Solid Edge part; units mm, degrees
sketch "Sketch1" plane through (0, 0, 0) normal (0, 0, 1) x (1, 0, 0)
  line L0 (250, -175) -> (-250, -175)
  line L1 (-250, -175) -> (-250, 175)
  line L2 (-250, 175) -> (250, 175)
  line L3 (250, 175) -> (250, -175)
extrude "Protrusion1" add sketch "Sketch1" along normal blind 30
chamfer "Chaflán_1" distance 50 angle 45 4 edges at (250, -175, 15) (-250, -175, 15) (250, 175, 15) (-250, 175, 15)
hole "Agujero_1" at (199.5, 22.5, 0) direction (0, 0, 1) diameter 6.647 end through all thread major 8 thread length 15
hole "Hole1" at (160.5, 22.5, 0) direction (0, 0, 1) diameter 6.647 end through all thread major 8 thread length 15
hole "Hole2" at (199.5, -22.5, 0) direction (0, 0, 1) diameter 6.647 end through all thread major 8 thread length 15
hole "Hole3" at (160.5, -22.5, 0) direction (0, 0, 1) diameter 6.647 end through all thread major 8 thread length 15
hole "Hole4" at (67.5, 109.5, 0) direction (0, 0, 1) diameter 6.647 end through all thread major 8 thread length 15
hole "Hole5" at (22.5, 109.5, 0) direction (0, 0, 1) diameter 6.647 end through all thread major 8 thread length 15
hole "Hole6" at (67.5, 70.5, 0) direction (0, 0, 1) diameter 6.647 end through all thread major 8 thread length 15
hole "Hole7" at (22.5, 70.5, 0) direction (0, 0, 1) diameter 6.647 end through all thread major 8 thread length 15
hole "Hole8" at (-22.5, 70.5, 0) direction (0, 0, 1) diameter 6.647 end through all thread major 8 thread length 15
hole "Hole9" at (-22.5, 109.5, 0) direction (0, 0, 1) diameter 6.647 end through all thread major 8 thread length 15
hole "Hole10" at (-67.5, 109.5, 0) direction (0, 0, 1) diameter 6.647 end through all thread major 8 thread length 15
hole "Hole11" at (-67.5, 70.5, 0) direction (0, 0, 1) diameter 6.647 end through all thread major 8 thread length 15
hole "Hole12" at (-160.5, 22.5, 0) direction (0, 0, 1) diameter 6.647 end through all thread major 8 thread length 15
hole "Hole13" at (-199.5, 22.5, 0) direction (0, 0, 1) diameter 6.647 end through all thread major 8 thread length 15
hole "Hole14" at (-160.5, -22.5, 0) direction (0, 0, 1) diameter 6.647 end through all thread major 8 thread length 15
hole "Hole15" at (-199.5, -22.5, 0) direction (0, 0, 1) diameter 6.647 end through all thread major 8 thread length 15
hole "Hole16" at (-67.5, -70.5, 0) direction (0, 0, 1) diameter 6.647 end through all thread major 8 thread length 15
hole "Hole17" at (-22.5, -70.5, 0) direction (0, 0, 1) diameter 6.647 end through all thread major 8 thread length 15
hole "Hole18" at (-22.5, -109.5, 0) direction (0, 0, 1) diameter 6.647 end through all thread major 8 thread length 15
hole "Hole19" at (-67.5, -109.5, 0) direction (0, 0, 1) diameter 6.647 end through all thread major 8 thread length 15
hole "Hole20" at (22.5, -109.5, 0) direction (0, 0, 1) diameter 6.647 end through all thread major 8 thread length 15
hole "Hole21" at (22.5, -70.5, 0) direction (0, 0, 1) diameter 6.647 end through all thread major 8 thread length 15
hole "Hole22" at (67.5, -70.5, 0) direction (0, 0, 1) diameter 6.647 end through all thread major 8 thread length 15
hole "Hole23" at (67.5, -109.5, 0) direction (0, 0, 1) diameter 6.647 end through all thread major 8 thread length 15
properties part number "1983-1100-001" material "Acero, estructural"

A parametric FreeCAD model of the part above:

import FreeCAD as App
import Part
import Sketcher

V = App.Vector


def edges_at(feature, points):
    """Names of the edges that pass closest to the given points."""
    edges = feature.Shape.Edges
    near = lambda p: min(range(len(edges)), key=lambda i: edges[i].distToShape(Part.Vertex(*p))[0])
    return sorted({f"Edge{near(p) + 1}" for p in points})


def add_polygon(sketch, points):
    """Adds a closed chain of lines whose ends are joined by coincident constraints."""
    first, n = sketch.GeometryCount, len(points)
    for a, b in zip(points, points[1:] + points[:1]):
        sketch.addGeometry(Part.LineSegment(App.Vector(*a, 0), App.Vector(*b, 0)), False)
    for i in range(n):
        sketch.addConstraint(Sketcher.Constraint("Coincident", first + i, 2, first + (i + 1) % n, 1))

doc = App.newDocument("Part")
params = doc.addObject("Spreadsheet::Sheet", "Params")
for row, (alias, value) in enumerate([
    ("sketch1_width", "500 mm"),
    ("sketch1_height", "350 mm"),
    ("pad1_length", "30 mm"),
    ("chamfer_size", "50 mm"),
    ("hole_diameter", "6.647 mm"),
    ("hole2_diameter", "6.647 mm"),
    ("hole3_diameter", "6.647 mm"),
    ("hole4_diameter", "6.647 mm"),
    ("hole5_diameter", "6.647 mm"),
    ("hole6_diameter", "6.647 mm"),
    ("hole7_diameter", "6.647 mm"),
    ("hole8_diameter", "6.647 mm"),
    ("hole9_diameter", "6.647 mm"),
    ("hole10_diameter", "6.647 mm"),
    ("hole11_diameter", "6.647 mm"),
    ("hole12_diameter", "6.647 mm"),
    ("hole13_diameter", "6.647 mm"),
    ("hole14_diameter", "6.647 mm"),
    ("hole15_diameter", "6.647 mm"),
    ("hole16_diameter", "6.647 mm"),
    ("hole17_diameter", "6.647 mm"),
    ("hole18_diameter", "6.647 mm"),
    ("hole19_diameter", "6.647 mm"),
    ("hole20_diameter", "6.647 mm"),
    ("hole21_diameter", "6.647 mm"),
    ("hole22_diameter", "6.647 mm"),
    ("hole23_diameter", "6.647 mm"),
    ("hole24_diameter", "6.647 mm"),
], start=1):
    params.set(f"A{row}", alias)
    params.set(f"B{row}", "=" + value)
    params.setAlias(f"B{row}", alias)

body = doc.addObject("PartDesign::Body", "Body")

sketch1 = body.newObject("Sketcher::SketchObject", "Sketch")
sketch1.AttachmentSupport = (doc.getObject("XY_Plane"), [""])
sketch1.MapMode = "FlatFace"
add_polygon(sketch1, [(-250, -175), (250, -175), (250, 175), (-250, 175)])
sketch1.addConstraint([
    Sketcher.Constraint("Horizontal", 0),
    Sketcher.Constraint("Vertical", 1),
    Sketcher.Constraint("Horizontal", 2),
    Sketcher.Constraint("Vertical", 3),
    Sketcher.Constraint("Symmetric", 0, 2, 2, 2, -1, 1),
    Sketcher.Constraint("DistanceX", 0, 1, 0, 2, 500.0),
    Sketcher.Constraint("DistanceY", 1, 1, 1, 2, 350.0),
])
sketch1.setExpression("Constraints[9]", "Params.sketch1_width")
sketch1.setExpression("Constraints[10]", "Params.sketch1_height")
pad1 = body.newObject("PartDesign::Pad", "Pad")
pad1.Profile = sketch1
pad1.setExpression("Length", "Params.pad1_length")
doc.recompute()

chamfer = body.newObject("PartDesign::Chamfer", "Chamfer")
chamfer.Base = (pad1, edges_at(pad1, [
    (250, -175, 15),
    (-250, -175, 15),
    (250, 175, 15),
    (-250, 175, 15),
]))
chamfer.setExpression("Size", "Params.chamfer_size")

sketch2 = body.newObject("Sketcher::SketchObject", "Sketch001")
sketch2.AttachmentSupport = (doc.getObject("XY_Plane"), [""])
sketch2.MapMode = "FlatFace"
sketch2.addGeometry(Part.Circle(V(199.5, 22.5, 0), V(0, 0, 1), 3.3), False)
sketch2.addConstraint([
    Sketcher.Constraint("Diameter", 0, 6.647),
    Sketcher.Constraint("DistanceX", -1, 1, 0, 3, 199.5),
    Sketcher.Constraint("DistanceY", -1, 1, 0, 3, 22.5),
])
doc.recompute()
hole = body.newObject("PartDesign::Hole", "Hole")
hole.Profile = sketch2
hole.ThreadType = "None"
hole.setExpression("Diameter", "Params.hole_diameter")
hole.DepthType = "ThroughAll"
hole.Reversed = True

sketch3 = body.newObject("Sketcher::SketchObject", "Sketch002")
sketch3.AttachmentSupport = (doc.getObject("XY_Plane"), [""])
sketch3.MapMode = "FlatFace"
sketch3.addGeometry(Part.Circle(V(160.5, 22.5, 0), V(0, 0, 1), 3.3), False)
sketch3.addConstraint([
    Sketcher.Constraint("Diameter", 0, 6.647),
    Sketcher.Constraint("DistanceX", -1, 1, 0, 3, 160.5),
    Sketcher.Constraint("DistanceY", -1, 1, 0, 3, 22.5),
])
doc.recompute()
hole2 = body.newObject("PartDesign::Hole", "Hole001")
hole2.Profile = sketch3
hole2.ThreadType = "None"
hole2.setExpression("Diameter", "Params.hole2_diameter")
hole2.DepthType = "ThroughAll"
hole2.Reversed = True

sketch4 = body.newObject("Sketcher::SketchObject", "Sketch003")
sketch4.AttachmentSupport = (doc.getObject("XY_Plane"), [""])
sketch4.MapMode = "FlatFace"
sketch4.addGeometry(Part.Circle(V(199.5, -22.5, 0), V(0, 0, 1), 3.3), False)
sketch4.addConstraint([
    Sketcher.Constraint("Diameter", 0, 6.647),
    Sketcher.Constraint("DistanceX", -1, 1, 0, 3, 199.5),
    Sketcher.Constraint("DistanceY", 0, 3, -1, 1, 22.5),
])
doc.recompute()
hole3 = body.newObject("PartDesign::Hole", "Hole002")
hole3.Profile = sketch4
hole3.ThreadType = "None"
hole3.setExpression("Diameter", "Params.hole3_diameter")
hole3.DepthType = "ThroughAll"
hole3.Reversed = True

sketch5 = body.newObject("Sketcher::SketchObject", "Sketch004")
sketch5.AttachmentSupport = (doc.getObject("XY_Plane"), [""])
sketch5.MapMode = "FlatFace"
sketch5.addGeometry(Part.Circle(V(160.5, -22.5, 0), V(0, 0, 1), 3.3), False)
sketch5.addConstraint([
    Sketcher.Constraint("Diameter", 0, 6.647),
    Sketcher.Constraint("DistanceX", -1, 1, 0, 3, 160.5),
    Sketcher.Constraint("DistanceY", 0, 3, -1, 1, 22.5),
])
doc.recompute()
hole4 = body.newObject("PartDesign::Hole", "Hole003")
hole4.Profile = sketch5
hole4.ThreadType = "None"
hole4.setExpression("Diameter", "Params.hole4_diameter")
hole4.DepthType = "ThroughAll"
hole4.Reversed = True

sketch6 = body.newObject("Sketcher::SketchObject", "Sketch005")
sketch6.AttachmentSupport = (doc.getObject("XY_Plane"), [""])
sketch6.MapMode = "FlatFace"
sketch6.addGeometry(Part.Circle(V(67.5, 109.5, 0), V(0, 0, 1), 3.3), False)
sketch6.addConstraint([
    Sketcher.Constraint("Diameter", 0, 6.647),
    Sketcher.Constraint("DistanceX", -1, 1, 0, 3, 67.5),
    Sketcher.Constraint("DistanceY", -1, 1, 0, 3, 109.5),
])
doc.recompute()
hole5 = body.newObject("PartDesign::Hole", "Hole004")
hole5.Profile = sketch6
hole5.ThreadType = "None"
hole5.setExpression("Diameter", "Params.hole5_diameter")
hole5.DepthType = "ThroughAll"
hole5.Reversed = True

sketch7 = body.newObject("Sketcher::SketchObject", "Sketch006")
sketch7.AttachmentSupport = (doc.getObject("XY_Plane"), [""])
sketch7.MapMode = "FlatFace"
sketch7.addGeometry(Part.Circle(V(22.5, 109.5, 0), V(0, 0, 1), 3.3), False)
sketch7.addConstraint([
    Sketcher.Constraint("Diameter", 0, 6.647),
    Sketcher.Constraint("DistanceX", -1, 1, 0, 3, 22.5),
    Sketcher.Constraint("DistanceY", -1, 1, 0, 3, 109.5),
])
doc.recompute()
hole6 = body.newObject("PartDesign::Hole", "Hole005")
hole6.Profile = sketch7
hole6.ThreadType = "None"
hole6.setExpression("Diameter", "Params.hole6_diameter")
hole6.DepthType = "ThroughAll"
hole6.Reversed = True

sketch8 = body.newObject("Sketcher::SketchObject", "Sketch007")
sketch8.AttachmentSupport = (doc.getObject("XY_Plane"), [""])
sketch8.MapMode = "FlatFace"
sketch8.addGeometry(Part.Circle(V(67.5, 70.5, 0), V(0, 0, 1), 3.3), False)
sketch8.addConstraint([
    Sketcher.Constraint("Diameter", 0, 6.647),
    Sketcher.Constraint("DistanceX", -1, 1, 0, 3, 67.5),
    Sketcher.Constraint("DistanceY", -1, 1, 0, 3, 70.5),
])
doc.recompute()
hole7 = body.newObject("PartDesign::Hole", "Hole006")
hole7.Profile = sketch8
hole7.ThreadType = "None"
hole7.setExpression("Diameter", "Params.hole7_diameter")
hole7.DepthType = "ThroughAll"
hole7.Reversed = True

sketch9 = body.newObject("Sketcher::SketchObject", "Sketch008")
sketch9.AttachmentSupport = (doc.getObject("XY_Plane"), [""])
sketch9.MapMode = "FlatFace"
sketch9.addGeometry(Part.Circle(V(22.5, 70.5, 0), V(0, 0, 1), 3.3), False)
sketch9.addConstraint([
    Sketcher.Constraint("Diameter", 0, 6.647),
    Sketcher.Constraint("DistanceX", -1, 1, 0, 3, 22.5),
    Sketcher.Constraint("DistanceY", -1, 1, 0, 3, 70.5),
])
doc.recompute()
hole8 = body.newObject("PartDesign::Hole", "Hole007")
hole8.Profile = sketch9
hole8.ThreadType = "None"
hole8.setExpression("Diameter", "Params.hole8_diameter")
hole8.DepthType = "ThroughAll"
hole8.Reversed = True

sketch10 = body.newObject("Sketcher::SketchObject", "Sketch009")
sketch10.AttachmentSupport = (doc.getObject("XY_Plane"), [""])
sketch10.MapMode = "FlatFace"
sketch10.addGeometry(Part.Circle(V(-22.5, 70.5, 0), V(0, 0, 1), 3.3), False)
sketch10.addConstraint([
    Sketcher.Constraint("Diameter", 0, 6.647),
    Sketcher.Constraint("DistanceX", 0, 3, -1, 1, 22.5),
    Sketcher.Constraint("DistanceY", -1, 1, 0, 3, 70.5),
])
doc.recompute()
hole9 = body.newObject("PartDesign::Hole", "Hole008")
hole9.Profile = sketch10
hole9.ThreadType = "None"
hole9.setExpression("Diameter", "Params.hole9_diameter")
hole9.DepthType = "ThroughAll"
hole9.Reversed = True

sketch11 = body.newObject("Sketcher::SketchObject", "Sketch010")
sketch11.AttachmentSupport = (doc.getObject("XY_Plane"), [""])
sketch11.MapMode = "FlatFace"
sketch11.addGeometry(Part.Circle(V(-22.5, 109.5, 0), V(0, 0, 1), 3.3), False)
sketch11.addConstraint([
    Sketcher.Constraint("Diameter", 0, 6.647),
    Sketcher.Constraint("DistanceX", 0, 3, -1, 1, 22.5),
    Sketcher.Constraint("DistanceY", -1, 1, 0, 3, 109.5),
])
doc.recompute()
hole10 = body.newObject("PartDesign::Hole", "Hole009")
hole10.Profile = sketch11
hole10.ThreadType = "None"
hole10.setExpression("Diameter", "Params.hole10_diameter")
hole10.DepthType = "ThroughAll"
hole10.Reversed = True

sketch12 = body.newObject("Sketcher::SketchObject", "Sketch011")
sketch12.AttachmentSupport = (doc.getObject("XY_Plane"), [""])
sketch12.MapMode = "FlatFace"
sketch12.addGeometry(Part.Circle(V(-67.5, 109.5, 0), V(0, 0, 1), 3.3), False)
sketch12.addConstraint([
    Sketcher.Constraint("Diameter", 0, 6.647),
    Sketcher.Constraint("DistanceX", 0, 3, -1, 1, 67.5),
    Sketcher.Constraint("DistanceY", -1, 1, 0, 3, 109.5),
])
doc.recompute()
hole11 = body.newObject("PartDesign::Hole", "Hole010")
hole11.Profile = sketch12
hole11.ThreadType = "None"
hole11.setExpression("Diameter", "Params.hole11_diameter")
hole11.DepthType = "ThroughAll"
hole11.Reversed = True

sketch13 = body.newObject("Sketcher::SketchObject", "Sketch012")
sketch13.AttachmentSupport = (doc.getObject("XY_Plane"), [""])
sketch13.MapMode = "FlatFace"
sketch13.addGeometry(Part.Circle(V(-67.5, 70.5, 0), V(0, 0, 1), 3.3), False)
sketch13.addConstraint([
    Sketcher.Constraint("Diameter", 0, 6.647),
    Sketcher.Constraint("DistanceX", 0, 3, -1, 1, 67.5),
    Sketcher.Constraint("DistanceY", -1, 1, 0, 3, 70.5),
])
doc.recompute()
hole12 = body.newObject("PartDesign::Hole", "Hole011")
hole12.Profile = sketch13
hole12.ThreadType = "None"
hole12.setExpression("Diameter", "Params.hole12_diameter")
hole12.DepthType = "ThroughAll"
hole12.Reversed = True

sketch14 = body.newObject("Sketcher::SketchObject", "Sketch013")
sketch14.AttachmentSupport = (doc.getObject("XY_Plane"), [""])
sketch14.MapMode = "FlatFace"
sketch14.addGeometry(Part.Circle(V(-160.5, 22.5, 0), V(0, 0, 1), 3.3), False)
sketch14.addConstraint([
    Sketcher.Constraint("Diameter", 0, 6.647),
    Sketcher.Constraint("DistanceX", 0, 3, -1, 1, 160.5),
    Sketcher.Constraint("DistanceY", -1, 1, 0, 3, 22.5),
])
doc.recompute()
hole13 = body.newObject("PartDesign::Hole", "Hole012")
hole13.Profile = sketch14
hole13.ThreadType = "None"
hole13.setExpression("Diameter", "Params.hole13_diameter")
hole13.DepthType = "ThroughAll"
hole13.Reversed = True

sketch15 = body.newObject("Sketcher::SketchObject", "Sketch014")
sketch15.AttachmentSupport = (doc.getObject("XY_Plane"), [""])
sketch15.MapMode = "FlatFace"
sketch15.addGeometry(Part.Circle(V(-199.5, 22.5, 0), V(0, 0, 1), 3.3), False)
sketch15.addConstraint([
    Sketcher.Constraint("Diameter", 0, 6.647),
    Sketcher.Constraint("DistanceX", 0, 3, -1, 1, 199.5),
    Sketcher.Constraint("DistanceY", -1, 1, 0, 3, 22.5),
])
doc.recompute()
hole14 = body.newObject("PartDesign::Hole", "Hole013")
hole14.Profile = sketch15
hole14.ThreadType = "None"
hole14.setExpression("Diameter", "Params.hole14_diameter")
hole14.DepthType = "ThroughAll"
hole14.Reversed = True

sketch16 = body.newObject("Sketcher::SketchObject", "Sketch015")
sketch16.AttachmentSupport = (doc.getObject("XY_Plane"), [""])
sketch16.MapMode = "FlatFace"
sketch16.addGeometry(Part.Circle(V(-160.5, -22.5, 0), V(0, 0, 1), 3.3), False)
sketch16.addConstraint([
    Sketcher.Constraint("Diameter", 0, 6.647),
    Sketcher.Constraint("DistanceX", 0, 3, -1, 1, 160.5),
    Sketcher.Constraint("DistanceY", 0, 3, -1, 1, 22.5),
])
doc.recompute()
hole15 = body.newObject("PartDesign::Hole", "Hole014")
hole15.Profile = sketch16
hole15.ThreadType = "None"
hole15.setExpression("Diameter", "Params.hole15_diameter")
hole15.DepthType = "ThroughAll"
hole15.Reversed = True

sketch17 = body.newObject("Sketcher::SketchObject", "Sketch016")
sketch17.AttachmentSupport = (doc.getObject("XY_Plane"), [""])
sketch17.MapMode = "FlatFace"
sketch17.addGeometry(Part.Circle(V(-199.5, -22.5, 0), V(0, 0, 1), 3.3), False)
sketch17.addConstraint([
    Sketcher.Constraint("Diameter", 0, 6.647),
    Sketcher.Constraint("DistanceX", 0, 3, -1, 1, 199.5),
    Sketcher.Constraint("DistanceY", 0, 3, -1, 1, 22.5),
])
doc.recompute()
hole16 = body.newObject("PartDesign::Hole", "Hole015")
hole16.Profile = sketch17
hole16.ThreadType = "None"
hole16.setExpression("Diameter", "Params.hole16_diameter")
hole16.DepthType = "ThroughAll"
hole16.Reversed = True

sketch18 = body.newObject("Sketcher::SketchObject", "Sketch017")
sketch18.AttachmentSupport = (doc.getObject("XY_Plane"), [""])
sketch18.MapMode = "FlatFace"
sketch18.addGeometry(Part.Circle(V(-67.5, -70.5, 0), V(0, 0, 1), 3.3), False)
sketch18.addConstraint([
    Sketcher.Constraint("Diameter", 0, 6.647),
    Sketcher.Constraint("DistanceX", 0, 3, -1, 1, 67.5),
    Sketcher.Constraint("DistanceY", 0, 3, -1, 1, 70.5),
])
doc.recompute()
hole17 = body.newObject("PartDesign::Hole", "Hole016")
hole17.Profile = sketch18
hole17.ThreadType = "None"
hole17.setExpression("Diameter", "Params.hole17_diameter")
hole17.DepthType = "ThroughAll"
hole17.Reversed = True

sketch19 = body.newObject("Sketcher::SketchObject", "Sketch018")
sketch19.AttachmentSupport = (doc.getObject("XY_Plane"), [""])
sketch19.MapMode = "FlatFace"
sketch19.addGeometry(Part.Circle(V(-22.5, -70.5, 0), V(0, 0, 1), 3.3), False)
sketch19.addConstraint([
    Sketcher.Constraint("Diameter", 0, 6.647),
    Sketcher.Constraint("DistanceX", 0, 3, -1, 1, 22.5),
    Sketcher.Constraint("DistanceY", 0, 3, -1, 1, 70.5),
])
doc.recompute()
hole18 = body.newObject("PartDesign::Hole", "Hole017")
hole18.Profile = sketch19
hole18.ThreadType = "None"
hole18.setExpression("Diameter", "Params.hole18_diameter")
hole18.DepthType = "ThroughAll"
hole18.Reversed = True

sketch20 = body.newObject("Sketcher::SketchObject", "Sketch019")
sketch20.AttachmentSupport = (doc.getObject("XY_Plane"), [""])
sketch20.MapMode = "FlatFace"
sketch20.addGeometry(Part.Circle(V(-22.5, -109.5, 0), V(0, 0, 1), 3.3), False)
sketch20.addConstraint([
    Sketcher.Constraint("Diameter", 0, 6.647),
    Sketcher.Constraint("DistanceX", 0, 3, -1, 1, 22.5),
    Sketcher.Constraint("DistanceY", 0, 3, -1, 1, 109.5),
])
doc.recompute()
hole19 = body.newObject("PartDesign::Hole", "Hole018")
hole19.Profile = sketch20
hole19.ThreadType = "None"
hole19.setExpression("Diameter", "Params.hole19_diameter")
hole19.DepthType = "ThroughAll"
hole19.Reversed = True

sketch21 = body.newObject("Sketcher::SketchObject", "Sketch020")
sketch21.AttachmentSupport = (doc.getObject("XY_Plane"), [""])
sketch21.MapMode = "FlatFace"
sketch21.addGeometry(Part.Circle(V(-67.5, -109.5, 0), V(0, 0, 1), 3.3), False)
sketch21.addConstraint([
    Sketcher.Constraint("Diameter", 0, 6.647),
    Sketcher.Constraint("DistanceX", 0, 3, -1, 1, 67.5),
    Sketcher.Constraint("DistanceY", 0, 3, -1, 1, 109.5),
])
doc.recompute()
hole20 = body.newObject("PartDesign::Hole", "Hole019")
hole20.Profile = sketch21
hole20.ThreadType = "None"
hole20.setExpression("Diameter", "Params.hole20_diameter")
hole20.DepthType = "ThroughAll"
hole20.Reversed = True

sketch22 = body.newObject("Sketcher::SketchObject", "Sketch021")
sketch22.AttachmentSupport = (doc.getObject("XY_Plane"), [""])
sketch22.MapMode = "FlatFace"
sketch22.addGeometry(Part.Circle(V(22.5, -109.5, 0), V(0, 0, 1), 3.3), False)
sketch22.addConstraint([
    Sketcher.Constraint("Diameter", 0, 6.647),
    Sketcher.Constraint("DistanceX", -1, 1, 0, 3, 22.5),
    Sketcher.Constraint("DistanceY", 0, 3, -1, 1, 109.5),
])
doc.recompute()
hole21 = body.newObject("PartDesign::Hole", "Hole020")
hole21.Profile = sketch22
hole21.ThreadType = "None"
hole21.setExpression("Diameter", "Params.hole21_diameter")
hole21.DepthType = "ThroughAll"
hole21.Reversed = True

sketch23 = body.newObject("Sketcher::SketchObject", "Sketch022")
sketch23.AttachmentSupport = (doc.getObject("XY_Plane"), [""])
sketch23.MapMode = "FlatFace"
sketch23.addGeometry(Part.Circle(V(22.5, -70.5, 0), V(0, 0, 1), 3.3), False)
sketch23.addConstraint([
    Sketcher.Constraint("Diameter", 0, 6.647),
    Sketcher.Constraint("DistanceX", -1, 1, 0, 3, 22.5),
    Sketcher.Constraint("DistanceY", 0, 3, -1, 1, 70.5),
])
doc.recompute()
hole22 = body.newObject("PartDesign::Hole", "Hole021")
hole22.Profile = sketch23
hole22.ThreadType = "None"
hole22.setExpression("Diameter", "Params.hole22_diameter")
hole22.DepthType = "ThroughAll"
hole22.Reversed = True

sketch24 = body.newObject("Sketcher::SketchObject", "Sketch023")
sketch24.AttachmentSupport = (doc.getObject("XY_Plane"), [""])
sketch24.MapMode = "FlatFace"
sketch24.addGeometry(Part.Circle(V(67.5, -70.5, 0), V(0, 0, 1), 3.3), False)
sketch24.addConstraint([
    Sketcher.Constraint("Diameter", 0, 6.647),
    Sketcher.Constraint("DistanceX", -1, 1, 0, 3, 67.5),
    Sketcher.Constraint("DistanceY", 0, 3, -1, 1, 70.5),
])
doc.recompute()
hole23 = body.newObject("PartDesign::Hole", "Hole022")
hole23.Profile = sketch24
hole23.ThreadType = "None"
hole23.setExpression("Diameter", "Params.hole23_diameter")
hole23.DepthType = "ThroughAll"
hole23.Reversed = True

sketch25 = body.newObject("Sketcher::SketchObject", "Sketch024")
sketch25.AttachmentSupport = (doc.getObject("XY_Plane"), [""])
sketch25.MapMode = "FlatFace"
sketch25.addGeometry(Part.Circle(V(67.5, -109.5, 0), V(0, 0, 1), 3.3), False)
sketch25.addConstraint([
    Sketcher.Constraint("Diameter", 0, 6.647),
    Sketcher.Constraint("DistanceX", -1, 1, 0, 3, 67.5),
    Sketcher.Constraint("DistanceY", 0, 3, -1, 1, 109.5),
])
doc.recompute()
hole24 = body.newObject("PartDesign::Hole", "Hole023")
hole24.Profile = sketch25
hole24.ThreadType = "None"
hole24.setExpression("Diameter", "Params.hole24_diameter")
hole24.DepthType = "ThroughAll"
hole24.Reversed = True

doc.recompute()
